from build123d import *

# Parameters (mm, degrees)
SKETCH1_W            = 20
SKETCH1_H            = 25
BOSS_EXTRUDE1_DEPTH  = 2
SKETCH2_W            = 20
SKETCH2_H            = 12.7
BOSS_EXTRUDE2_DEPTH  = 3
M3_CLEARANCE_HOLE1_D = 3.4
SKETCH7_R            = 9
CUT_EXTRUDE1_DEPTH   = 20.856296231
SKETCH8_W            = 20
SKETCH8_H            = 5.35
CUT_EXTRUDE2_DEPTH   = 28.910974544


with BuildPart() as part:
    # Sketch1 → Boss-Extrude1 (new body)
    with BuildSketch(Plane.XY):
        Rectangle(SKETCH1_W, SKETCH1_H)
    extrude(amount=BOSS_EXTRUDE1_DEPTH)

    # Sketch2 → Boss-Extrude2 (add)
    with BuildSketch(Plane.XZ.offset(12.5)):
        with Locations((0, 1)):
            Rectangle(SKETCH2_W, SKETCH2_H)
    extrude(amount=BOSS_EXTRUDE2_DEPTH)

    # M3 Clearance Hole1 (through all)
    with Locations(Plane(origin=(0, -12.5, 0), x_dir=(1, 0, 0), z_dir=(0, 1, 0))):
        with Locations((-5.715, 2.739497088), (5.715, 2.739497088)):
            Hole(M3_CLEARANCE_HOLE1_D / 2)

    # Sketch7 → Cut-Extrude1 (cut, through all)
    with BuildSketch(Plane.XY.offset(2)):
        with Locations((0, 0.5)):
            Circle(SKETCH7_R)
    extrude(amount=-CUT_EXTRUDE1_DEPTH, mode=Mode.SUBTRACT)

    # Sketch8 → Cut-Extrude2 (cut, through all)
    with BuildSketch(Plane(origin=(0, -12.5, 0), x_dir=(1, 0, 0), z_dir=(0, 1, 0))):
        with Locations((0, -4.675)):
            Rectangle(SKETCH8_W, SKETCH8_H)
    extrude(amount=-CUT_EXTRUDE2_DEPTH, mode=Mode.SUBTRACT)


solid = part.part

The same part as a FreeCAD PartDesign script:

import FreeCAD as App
import Part
import Sketcher
Q = App.Units.Quantity


def add_polygon(sketch, points):
    """Adds a closed chain of lines whose ends are joined by coincident constraints."""
    first, n = sketch.GeometryCount, len(points)
    for a, b in zip(points, points[1:] + points[:1]):
        sketch.addGeometry(Part.LineSegment(App.Vector(*a, 0), App.Vector(*b, 0)), False)
    for i in range(n):
        sketch.addConstraint(Sketcher.Constraint("Coincident", first + i, 2, first + (i + 1) % n, 1))

doc = App.newDocument("Part")
body = doc.addObject("PartDesign::Body", "Body")

sketch1 = body.newObject("Sketcher::SketchObject", "Sketch")
sketch1.AttachmentSupport = (doc.getObject("XY_Plane"), [""])
sketch1.MapMode = "FlatFace"
add_polygon(sketch1, [(-10, 12.5), (-10, -12.5), (10, -12.5), (10, 12.5)])
sketch1.addConstraint([
    Sketcher.Constraint("Vertical", 0),
    Sketcher.Constraint("Horizontal", 1),
    Sketcher.Constraint("Vertical", 2),
    Sketcher.Constraint("Horizontal", 3),
    Sketcher.Constraint("Symmetric", 0, 2, 2, 2, -1, 1),
    Sketcher.Constraint("DistanceX", 1, 1, 1, 2, Q("20 mm")),
    Sketcher.Constraint("DistanceY", 0, 2, 0, 1, Q("25 mm")),
])
pad1 = body.newObject("PartDesign::Pad", "Pad")
pad1.Profile = sketch1
pad1.Length = 2

sketch2 = body.newObject("Sketcher::SketchObject", "Sketch001")
sketch2.AttachmentSupport = (doc.getObject("XZ_Plane"), [""])
sketch2.MapMode = "FlatFace"
sketch2.AttachmentOffset = App.Placement(App.Vector(0, 0, 12.5), App.Rotation())
add_polygon(sketch2, [(-10, 7.35), (-10, -5.35), (10, -5.35), (10, 7.35)])
sketch2.addConstraint([
    Sketcher.Constraint("Vertical", 0),
    Sketcher.Constraint("Horizontal", 1),
    Sketcher.Constraint("Vertical", 2),
    Sketcher.Constraint("Horizontal", 3),
    Sketcher.Constraint("DistanceX", 1, 1, 1, 2, Q("20 mm")),
    Sketcher.Constraint("DistanceY", 0, 2, 0, 1, Q("12.7 mm")),
    Sketcher.Constraint("DistanceX", 0, 2, -1, 1, Q("10 mm")),
    Sketcher.Constraint("DistanceY", 0, 2, -1, 1, Q("5.35 mm")),
])
pad2 = body.newObject("PartDesign::Pad", "Pad001")
pad2.Profile = sketch2
pad2.Length = 3

sketch3 = body.newObject("Sketcher::SketchObject", "Sketch002")
sketch3.AttachmentSupport = (doc.getObject("XZ_Plane"), [""])
sketch3.MapMode = "FlatFace"
sketch3.AttachmentOffset = App.Placement(App.Vector(0, 0, 12.5), App.Rotation())
sketch3.addGeometry([
    Part.Circle(App.Vector(-5.715, -2.739497, 0), App.Vector(0, 0, 1), 1.7),
    Part.Circle(App.Vector(5.715, -2.739497, 0), App.Vector(0, 0, 1), 1.7),
], False)
sketch3.addConstraint([
    Sketcher.Constraint("Equal", 0, 1),
    Sketcher.Constraint("Symmetric", 0, 3, 1, 3, -2),
    Sketcher.Constraint("Diameter", 0, Q("3.4 mm")),
    Sketcher.Constraint("DistanceX", 0, 3, 1, 3, Q("11.43 mm")),
    Sketcher.Constraint("DistanceY", 0, 3, -1, 1, Q("2.739497 mm")),
])
doc.recompute()
hole = body.newObject("PartDesign::Hole", "Hole")
hole.Profile = sketch3
hole.ThreadType = "None"
hole.Diameter = 3.4
hole.DepthType = "ThroughAll"
hole.Reversed = True

sketch4 = body.newObject("Sketcher::SketchObject", "Sketch003")
sketch4.AttachmentSupport = (doc.getObject("XY_Plane"), [""])
sketch4.MapMode = "FlatFace"
sketch4.AttachmentOffset = App.Placement(App.Vector(0, 0, 2), App.Rotation())
sketch4.addGeometry(Part.Circle(App.Vector(0, 0.5, 0), App.Vector(0, 0, 1), 9), False)
sketch4.addConstraint([
    Sketcher.Constraint("PointOnObject", 0, 3, -2),
    Sketcher.Constraint("Diameter", 0, Q("18 mm")),
    Sketcher.Constraint("DistanceY", -1, 1, 0, 3, Q("0.5 mm")),
])
pocket1 = body.newObject("PartDesign::Pocket", "Pocket")
pocket1.Profile = sketch4
pocket1.Type = "ThroughAll"

sketch5 = body.newObject("Sketcher::SketchObject", "Sketch004")
sketch5.AttachmentSupport = (doc.getObject("XZ_Plane"), [""])
sketch5.MapMode = "FlatFace"
sketch5.AttachmentOffset = App.Placement(App.Vector(0, 0, 12.5), App.Rotation())
add_polygon(sketch5, [(-10, 2), (-10, 7.35), (10, 7.35), (10, 2)])
sketch5.addConstraint([
    Sketcher.Constraint("Vertical", 0),
    Sketcher.Constraint("Horizontal", 1),
    Sketcher.Constraint("Vertical", 2),
    Sketcher.Constraint("Horizontal", 3),
    Sketcher.Constraint("DistanceX", 1, 1, 1, 2, Q("20 mm")),
    Sketcher.Constraint("DistanceX", 0, 2, -1, 1, Q("10 mm")),
    Sketcher.Constraint("DistanceY", -1, 1, 2, 2, Q("2 mm")),
    Sketcher.Constraint("DistanceY", 0, 1, 0, 2, Q("5.35 mm")),
])
pocket2 = body.newObject("PartDesign::Pocket", "Pocket001")
pocket2.Profile = sketch5
pocket2.Type = "ThroughAll"
pocket2.Reversed = True

doc.recompute()
